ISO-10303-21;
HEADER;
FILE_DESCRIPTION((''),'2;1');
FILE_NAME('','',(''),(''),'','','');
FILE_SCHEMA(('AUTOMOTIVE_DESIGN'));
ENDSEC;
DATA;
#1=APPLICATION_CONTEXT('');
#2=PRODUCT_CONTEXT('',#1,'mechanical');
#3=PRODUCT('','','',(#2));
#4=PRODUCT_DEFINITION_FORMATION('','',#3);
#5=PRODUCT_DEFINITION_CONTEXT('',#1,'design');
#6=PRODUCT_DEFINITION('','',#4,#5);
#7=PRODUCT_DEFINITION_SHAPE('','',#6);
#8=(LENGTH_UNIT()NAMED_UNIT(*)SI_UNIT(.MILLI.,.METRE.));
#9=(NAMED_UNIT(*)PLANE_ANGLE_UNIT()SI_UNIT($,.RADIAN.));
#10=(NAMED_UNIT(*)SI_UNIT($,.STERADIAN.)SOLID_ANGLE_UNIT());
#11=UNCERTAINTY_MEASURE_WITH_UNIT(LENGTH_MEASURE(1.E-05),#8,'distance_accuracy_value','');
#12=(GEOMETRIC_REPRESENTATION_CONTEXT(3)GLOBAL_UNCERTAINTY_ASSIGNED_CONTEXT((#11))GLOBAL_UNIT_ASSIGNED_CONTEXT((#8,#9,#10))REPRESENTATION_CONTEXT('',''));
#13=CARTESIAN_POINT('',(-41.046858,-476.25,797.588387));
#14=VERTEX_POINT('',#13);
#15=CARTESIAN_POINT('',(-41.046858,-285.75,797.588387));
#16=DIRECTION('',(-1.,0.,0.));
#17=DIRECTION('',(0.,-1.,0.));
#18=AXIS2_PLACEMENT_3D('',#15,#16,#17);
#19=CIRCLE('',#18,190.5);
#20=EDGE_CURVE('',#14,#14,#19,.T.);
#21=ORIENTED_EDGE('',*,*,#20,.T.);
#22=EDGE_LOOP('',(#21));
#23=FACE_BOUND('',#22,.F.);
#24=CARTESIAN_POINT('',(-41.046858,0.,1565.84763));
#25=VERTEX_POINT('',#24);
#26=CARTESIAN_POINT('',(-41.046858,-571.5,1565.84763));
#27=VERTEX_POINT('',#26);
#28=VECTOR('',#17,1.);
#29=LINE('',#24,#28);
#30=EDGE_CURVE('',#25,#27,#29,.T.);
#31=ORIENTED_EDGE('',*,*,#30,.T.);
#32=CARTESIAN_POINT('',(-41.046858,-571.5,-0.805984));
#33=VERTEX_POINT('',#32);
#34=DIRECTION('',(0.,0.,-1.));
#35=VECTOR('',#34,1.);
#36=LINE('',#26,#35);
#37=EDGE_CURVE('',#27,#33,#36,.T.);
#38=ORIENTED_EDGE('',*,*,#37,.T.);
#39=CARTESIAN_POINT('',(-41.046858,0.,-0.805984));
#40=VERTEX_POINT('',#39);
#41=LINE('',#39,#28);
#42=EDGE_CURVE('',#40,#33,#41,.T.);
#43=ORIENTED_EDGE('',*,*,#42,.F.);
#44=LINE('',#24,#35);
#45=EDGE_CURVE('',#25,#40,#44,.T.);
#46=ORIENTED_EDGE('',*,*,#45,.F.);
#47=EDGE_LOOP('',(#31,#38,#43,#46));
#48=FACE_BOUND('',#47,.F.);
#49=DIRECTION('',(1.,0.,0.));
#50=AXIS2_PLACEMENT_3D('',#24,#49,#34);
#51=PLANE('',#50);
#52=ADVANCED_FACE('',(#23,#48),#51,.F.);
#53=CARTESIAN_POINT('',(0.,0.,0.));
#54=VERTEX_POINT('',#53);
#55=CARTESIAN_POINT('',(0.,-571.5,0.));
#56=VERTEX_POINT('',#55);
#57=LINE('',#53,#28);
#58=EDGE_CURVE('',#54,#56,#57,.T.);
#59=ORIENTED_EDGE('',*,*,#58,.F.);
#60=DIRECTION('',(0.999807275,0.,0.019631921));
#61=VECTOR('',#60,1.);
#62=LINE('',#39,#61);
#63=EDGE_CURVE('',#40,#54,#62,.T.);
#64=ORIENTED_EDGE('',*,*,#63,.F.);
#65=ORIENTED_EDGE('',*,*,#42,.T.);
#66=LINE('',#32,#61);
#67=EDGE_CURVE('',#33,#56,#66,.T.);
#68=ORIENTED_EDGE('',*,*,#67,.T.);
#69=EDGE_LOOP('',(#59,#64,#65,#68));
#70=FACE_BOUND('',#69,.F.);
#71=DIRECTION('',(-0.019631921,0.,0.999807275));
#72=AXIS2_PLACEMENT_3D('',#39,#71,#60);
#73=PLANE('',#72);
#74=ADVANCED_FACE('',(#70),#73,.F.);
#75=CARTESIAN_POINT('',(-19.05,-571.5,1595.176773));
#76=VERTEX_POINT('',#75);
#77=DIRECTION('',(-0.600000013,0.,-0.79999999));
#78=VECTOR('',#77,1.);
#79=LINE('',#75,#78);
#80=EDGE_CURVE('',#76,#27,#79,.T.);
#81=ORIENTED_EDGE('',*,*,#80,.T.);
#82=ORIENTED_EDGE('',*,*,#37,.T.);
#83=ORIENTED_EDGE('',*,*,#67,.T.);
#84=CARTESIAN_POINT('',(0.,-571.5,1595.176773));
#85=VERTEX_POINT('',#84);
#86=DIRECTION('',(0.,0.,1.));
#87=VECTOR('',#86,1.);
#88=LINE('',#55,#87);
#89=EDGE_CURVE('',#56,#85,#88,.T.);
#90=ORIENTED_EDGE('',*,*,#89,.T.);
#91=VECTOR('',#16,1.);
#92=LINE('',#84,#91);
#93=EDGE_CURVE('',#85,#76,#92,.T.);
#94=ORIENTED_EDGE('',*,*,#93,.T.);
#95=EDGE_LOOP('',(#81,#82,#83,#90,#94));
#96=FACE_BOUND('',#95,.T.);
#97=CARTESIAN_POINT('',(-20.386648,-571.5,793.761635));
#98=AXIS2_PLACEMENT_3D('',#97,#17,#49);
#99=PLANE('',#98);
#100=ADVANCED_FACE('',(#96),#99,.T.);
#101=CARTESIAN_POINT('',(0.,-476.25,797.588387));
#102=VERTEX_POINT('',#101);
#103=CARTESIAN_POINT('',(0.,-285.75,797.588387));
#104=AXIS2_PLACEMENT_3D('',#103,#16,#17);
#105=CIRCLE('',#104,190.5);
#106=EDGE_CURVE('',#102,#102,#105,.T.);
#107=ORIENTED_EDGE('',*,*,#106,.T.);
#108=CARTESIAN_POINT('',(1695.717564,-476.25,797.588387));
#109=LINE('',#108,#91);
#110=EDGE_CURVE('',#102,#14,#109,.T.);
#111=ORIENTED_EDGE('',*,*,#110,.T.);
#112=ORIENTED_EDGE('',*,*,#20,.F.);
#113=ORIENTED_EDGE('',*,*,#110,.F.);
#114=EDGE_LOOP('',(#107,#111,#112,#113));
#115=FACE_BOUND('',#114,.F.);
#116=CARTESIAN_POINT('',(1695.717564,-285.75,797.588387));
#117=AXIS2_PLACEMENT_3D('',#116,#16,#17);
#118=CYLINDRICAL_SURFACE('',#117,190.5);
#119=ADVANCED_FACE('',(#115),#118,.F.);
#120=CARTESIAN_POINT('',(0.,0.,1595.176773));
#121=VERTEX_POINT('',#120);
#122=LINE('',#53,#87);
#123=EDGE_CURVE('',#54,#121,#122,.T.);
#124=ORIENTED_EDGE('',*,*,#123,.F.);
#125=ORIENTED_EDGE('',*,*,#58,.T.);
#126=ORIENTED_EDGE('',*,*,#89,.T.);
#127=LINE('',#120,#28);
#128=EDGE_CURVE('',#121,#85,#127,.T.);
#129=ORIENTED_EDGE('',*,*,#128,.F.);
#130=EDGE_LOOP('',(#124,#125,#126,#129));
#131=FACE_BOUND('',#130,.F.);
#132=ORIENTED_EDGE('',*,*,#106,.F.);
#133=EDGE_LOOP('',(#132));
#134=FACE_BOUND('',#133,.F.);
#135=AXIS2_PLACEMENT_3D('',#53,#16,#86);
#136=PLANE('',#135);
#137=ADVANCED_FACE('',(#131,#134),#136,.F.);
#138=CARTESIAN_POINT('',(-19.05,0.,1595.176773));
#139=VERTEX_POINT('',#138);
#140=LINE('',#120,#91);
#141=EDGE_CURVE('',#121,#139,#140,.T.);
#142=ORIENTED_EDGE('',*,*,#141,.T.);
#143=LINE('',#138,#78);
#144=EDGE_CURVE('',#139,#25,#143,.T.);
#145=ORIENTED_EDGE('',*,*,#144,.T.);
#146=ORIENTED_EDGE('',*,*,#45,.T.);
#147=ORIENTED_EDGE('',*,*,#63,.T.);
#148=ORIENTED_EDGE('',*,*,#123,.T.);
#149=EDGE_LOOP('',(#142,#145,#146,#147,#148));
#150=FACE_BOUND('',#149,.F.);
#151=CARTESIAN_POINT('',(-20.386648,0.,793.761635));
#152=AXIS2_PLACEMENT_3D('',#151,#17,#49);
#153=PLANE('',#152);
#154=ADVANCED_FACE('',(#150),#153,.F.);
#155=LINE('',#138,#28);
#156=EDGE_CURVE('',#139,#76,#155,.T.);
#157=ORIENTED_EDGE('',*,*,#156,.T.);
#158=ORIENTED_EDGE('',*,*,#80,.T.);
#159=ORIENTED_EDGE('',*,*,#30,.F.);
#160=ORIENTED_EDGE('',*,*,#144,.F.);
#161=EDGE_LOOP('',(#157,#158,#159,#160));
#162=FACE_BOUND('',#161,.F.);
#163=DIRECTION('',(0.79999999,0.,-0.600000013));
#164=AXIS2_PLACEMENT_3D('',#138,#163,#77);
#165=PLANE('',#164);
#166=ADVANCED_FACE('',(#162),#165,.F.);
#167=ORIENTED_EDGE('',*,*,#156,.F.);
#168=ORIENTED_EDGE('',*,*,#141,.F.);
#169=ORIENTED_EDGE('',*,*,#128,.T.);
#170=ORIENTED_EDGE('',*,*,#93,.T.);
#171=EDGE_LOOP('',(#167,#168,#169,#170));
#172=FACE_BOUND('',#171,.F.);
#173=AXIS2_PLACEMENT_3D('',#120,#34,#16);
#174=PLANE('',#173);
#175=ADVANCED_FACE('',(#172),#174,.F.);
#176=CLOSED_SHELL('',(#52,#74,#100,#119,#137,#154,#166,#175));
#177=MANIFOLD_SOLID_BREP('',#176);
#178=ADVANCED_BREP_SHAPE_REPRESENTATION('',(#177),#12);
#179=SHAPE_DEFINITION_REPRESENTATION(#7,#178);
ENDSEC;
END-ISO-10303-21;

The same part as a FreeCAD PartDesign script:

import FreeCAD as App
import Part
import Sketcher
Q = App.Units.Quantity

doc = App.newDocument("Part")
params = doc.addObject("Spreadsheet::Sheet", "Params")
for row, (alias, value) in enumerate([
    ("sketch1_width", "0.75 in"),
    ("pad1_length", "22.5 in"),
    ("sketch2_diameter", "15 in"),
    ("hole_diameter", "15 in"),
], start=1):
    params.set(f"A{row}", alias)
    params.set(f"B{row}", "=" + value)
    params.setAlias(f"B{row}", alias)

body = doc.addObject("PartDesign::Body", "Body")

# Sketch on XZ plane
sketch1 = doc.addObject("Sketcher::SketchObject", "Sketch")
body.addObject(sketch1)
sketch1.AttachmentSupport = (doc.XZ_Plane, [""])
sketch1.MapMode = "FlatFace"
sketch1.addGeometry([
    Part.LineSegment(App.Vector(-41, -1, 0), App.Vector(0, 0, 0)),  # 0
    Part.LineSegment(App.Vector(0, 0, 0), App.Vector(0, 1595, 0)),  # 1
    Part.LineSegment(App.Vector(0, 1595, 0), App.Vector(-19, 1595, 0)),  # 2
    Part.LineSegment(App.Vector(-19, 1595, 0), App.Vector(-41, 1566, 0)),  # 3
    Part.LineSegment(App.Vector(-41, 1566, 0), App.Vector(-41, -1, 0)),  # 4
], False)
sketch1.addConstraint([
    Sketcher.Constraint("Coincident", 0, 2, 1, 1),
    Sketcher.Constraint("Coincident", 1, 2, 2, 1),
    Sketcher.Constraint("Coincident", 2, 2, 3, 1),
    Sketcher.Constraint("Coincident", 3, 2, 4, 1),
    Sketcher.Constraint("Coincident", 4, 2, 0, 1),
    Sketcher.Constraint("Vertical", 1),
    Sketcher.Constraint("Horizontal", 2),
    Sketcher.Constraint("Vertical", 4),
    Sketcher.Constraint("Coincident", 0, 2, -1, 1),
    Sketcher.Constraint("DistanceX", 2, 2, 2, 1, Q("0.75 in")),
    Sketcher.Constraint("Distance", 0, Q("41.05477 mm")),
    Sketcher.Constraint("Distance", 3, Q("36.661429 mm")),
    Sketcher.Constraint("DistanceY", 1, 1, 1, 2, Q("1595.176773 mm")),
    Sketcher.Constraint("DistanceY", 4, 2, 4, 1, Q("1566.653614 mm")),
])
sketch1.setExpression("Constraints[9]", "Params.sketch1_width")
pad1 = doc.addObject("PartDesign::Pad", "Pad")
body.addObject(pad1)
pad1.Profile = sketch1
pad1.setExpression("Length", "Params.pad1_length")

# Sketch on YZ plane
sketch2 = doc.addObject("Sketcher::SketchObject", "Sketch001")
body.addObject(sketch2)
sketch2.AttachmentSupport = (doc.YZ_Plane, [""])
sketch2.MapMode = "FlatFace"
sketch2.addGeometry(Part.Circle(App.Vector(-286, 798, 0), App.Vector(0, 0, 1), 190), False)
sketch2.addConstraint([
    Sketcher.Constraint("Diameter", 0, Q("15 in")),
    Sketcher.Constraint("DistanceX", 0, 3, -1, 1, Q("11.25 in")),
    Sketcher.Constraint("DistanceY", -1, 1, 0, 3, Q("797.588387 mm")),
])
sketch2.setExpression("Constraints[0]", "Params.sketch2_diameter")
doc.recompute()
hole = doc.addObject("PartDesign::Hole", "Hole")
body.addObject(hole)
hole.Profile = sketch2
hole.ThreadType = "None"
hole.setExpression("Diameter", "Params.hole_diameter")
hole.DepthType = "ThroughAll"

doc.recompute()
